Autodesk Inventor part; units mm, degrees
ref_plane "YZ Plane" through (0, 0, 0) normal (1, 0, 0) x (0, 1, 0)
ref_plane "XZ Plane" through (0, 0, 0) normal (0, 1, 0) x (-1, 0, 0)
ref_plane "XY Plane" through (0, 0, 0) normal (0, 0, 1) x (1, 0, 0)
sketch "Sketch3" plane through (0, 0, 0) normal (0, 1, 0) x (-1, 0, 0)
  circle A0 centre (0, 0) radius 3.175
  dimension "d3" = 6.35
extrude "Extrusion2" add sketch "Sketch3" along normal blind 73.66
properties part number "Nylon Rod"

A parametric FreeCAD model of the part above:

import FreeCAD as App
import Part
import Sketcher
Q = App.Units.Quantity

doc = App.newDocument("Part")
body = doc.addObject("PartDesign::Body", "Body")

sketch1 = body.newObject("Sketcher::SketchObject", "Sketch")
sketch1.AttachmentSupport = (doc.getObject("XZ_Plane"), [""])
sketch1.MapMode = "FlatFace"
sketch1.addGeometry(Part.Circle(App.Vector(0, 0, 0), App.Vector(0, 0, 1), 3.2), False)
sketch1.addConstraint([
    Sketcher.Constraint("Coincident", 0, 3, -1, 1),
    Sketcher.Constraint("Diameter", 0, Q("0.25 in")),
])
pad1 = body.newObject("PartDesign::Pad", "Pad")
pad1.Profile = sketch1
pad1.Length = Q("2.9 in")
pad1.Reversed = True

doc.recompute()
